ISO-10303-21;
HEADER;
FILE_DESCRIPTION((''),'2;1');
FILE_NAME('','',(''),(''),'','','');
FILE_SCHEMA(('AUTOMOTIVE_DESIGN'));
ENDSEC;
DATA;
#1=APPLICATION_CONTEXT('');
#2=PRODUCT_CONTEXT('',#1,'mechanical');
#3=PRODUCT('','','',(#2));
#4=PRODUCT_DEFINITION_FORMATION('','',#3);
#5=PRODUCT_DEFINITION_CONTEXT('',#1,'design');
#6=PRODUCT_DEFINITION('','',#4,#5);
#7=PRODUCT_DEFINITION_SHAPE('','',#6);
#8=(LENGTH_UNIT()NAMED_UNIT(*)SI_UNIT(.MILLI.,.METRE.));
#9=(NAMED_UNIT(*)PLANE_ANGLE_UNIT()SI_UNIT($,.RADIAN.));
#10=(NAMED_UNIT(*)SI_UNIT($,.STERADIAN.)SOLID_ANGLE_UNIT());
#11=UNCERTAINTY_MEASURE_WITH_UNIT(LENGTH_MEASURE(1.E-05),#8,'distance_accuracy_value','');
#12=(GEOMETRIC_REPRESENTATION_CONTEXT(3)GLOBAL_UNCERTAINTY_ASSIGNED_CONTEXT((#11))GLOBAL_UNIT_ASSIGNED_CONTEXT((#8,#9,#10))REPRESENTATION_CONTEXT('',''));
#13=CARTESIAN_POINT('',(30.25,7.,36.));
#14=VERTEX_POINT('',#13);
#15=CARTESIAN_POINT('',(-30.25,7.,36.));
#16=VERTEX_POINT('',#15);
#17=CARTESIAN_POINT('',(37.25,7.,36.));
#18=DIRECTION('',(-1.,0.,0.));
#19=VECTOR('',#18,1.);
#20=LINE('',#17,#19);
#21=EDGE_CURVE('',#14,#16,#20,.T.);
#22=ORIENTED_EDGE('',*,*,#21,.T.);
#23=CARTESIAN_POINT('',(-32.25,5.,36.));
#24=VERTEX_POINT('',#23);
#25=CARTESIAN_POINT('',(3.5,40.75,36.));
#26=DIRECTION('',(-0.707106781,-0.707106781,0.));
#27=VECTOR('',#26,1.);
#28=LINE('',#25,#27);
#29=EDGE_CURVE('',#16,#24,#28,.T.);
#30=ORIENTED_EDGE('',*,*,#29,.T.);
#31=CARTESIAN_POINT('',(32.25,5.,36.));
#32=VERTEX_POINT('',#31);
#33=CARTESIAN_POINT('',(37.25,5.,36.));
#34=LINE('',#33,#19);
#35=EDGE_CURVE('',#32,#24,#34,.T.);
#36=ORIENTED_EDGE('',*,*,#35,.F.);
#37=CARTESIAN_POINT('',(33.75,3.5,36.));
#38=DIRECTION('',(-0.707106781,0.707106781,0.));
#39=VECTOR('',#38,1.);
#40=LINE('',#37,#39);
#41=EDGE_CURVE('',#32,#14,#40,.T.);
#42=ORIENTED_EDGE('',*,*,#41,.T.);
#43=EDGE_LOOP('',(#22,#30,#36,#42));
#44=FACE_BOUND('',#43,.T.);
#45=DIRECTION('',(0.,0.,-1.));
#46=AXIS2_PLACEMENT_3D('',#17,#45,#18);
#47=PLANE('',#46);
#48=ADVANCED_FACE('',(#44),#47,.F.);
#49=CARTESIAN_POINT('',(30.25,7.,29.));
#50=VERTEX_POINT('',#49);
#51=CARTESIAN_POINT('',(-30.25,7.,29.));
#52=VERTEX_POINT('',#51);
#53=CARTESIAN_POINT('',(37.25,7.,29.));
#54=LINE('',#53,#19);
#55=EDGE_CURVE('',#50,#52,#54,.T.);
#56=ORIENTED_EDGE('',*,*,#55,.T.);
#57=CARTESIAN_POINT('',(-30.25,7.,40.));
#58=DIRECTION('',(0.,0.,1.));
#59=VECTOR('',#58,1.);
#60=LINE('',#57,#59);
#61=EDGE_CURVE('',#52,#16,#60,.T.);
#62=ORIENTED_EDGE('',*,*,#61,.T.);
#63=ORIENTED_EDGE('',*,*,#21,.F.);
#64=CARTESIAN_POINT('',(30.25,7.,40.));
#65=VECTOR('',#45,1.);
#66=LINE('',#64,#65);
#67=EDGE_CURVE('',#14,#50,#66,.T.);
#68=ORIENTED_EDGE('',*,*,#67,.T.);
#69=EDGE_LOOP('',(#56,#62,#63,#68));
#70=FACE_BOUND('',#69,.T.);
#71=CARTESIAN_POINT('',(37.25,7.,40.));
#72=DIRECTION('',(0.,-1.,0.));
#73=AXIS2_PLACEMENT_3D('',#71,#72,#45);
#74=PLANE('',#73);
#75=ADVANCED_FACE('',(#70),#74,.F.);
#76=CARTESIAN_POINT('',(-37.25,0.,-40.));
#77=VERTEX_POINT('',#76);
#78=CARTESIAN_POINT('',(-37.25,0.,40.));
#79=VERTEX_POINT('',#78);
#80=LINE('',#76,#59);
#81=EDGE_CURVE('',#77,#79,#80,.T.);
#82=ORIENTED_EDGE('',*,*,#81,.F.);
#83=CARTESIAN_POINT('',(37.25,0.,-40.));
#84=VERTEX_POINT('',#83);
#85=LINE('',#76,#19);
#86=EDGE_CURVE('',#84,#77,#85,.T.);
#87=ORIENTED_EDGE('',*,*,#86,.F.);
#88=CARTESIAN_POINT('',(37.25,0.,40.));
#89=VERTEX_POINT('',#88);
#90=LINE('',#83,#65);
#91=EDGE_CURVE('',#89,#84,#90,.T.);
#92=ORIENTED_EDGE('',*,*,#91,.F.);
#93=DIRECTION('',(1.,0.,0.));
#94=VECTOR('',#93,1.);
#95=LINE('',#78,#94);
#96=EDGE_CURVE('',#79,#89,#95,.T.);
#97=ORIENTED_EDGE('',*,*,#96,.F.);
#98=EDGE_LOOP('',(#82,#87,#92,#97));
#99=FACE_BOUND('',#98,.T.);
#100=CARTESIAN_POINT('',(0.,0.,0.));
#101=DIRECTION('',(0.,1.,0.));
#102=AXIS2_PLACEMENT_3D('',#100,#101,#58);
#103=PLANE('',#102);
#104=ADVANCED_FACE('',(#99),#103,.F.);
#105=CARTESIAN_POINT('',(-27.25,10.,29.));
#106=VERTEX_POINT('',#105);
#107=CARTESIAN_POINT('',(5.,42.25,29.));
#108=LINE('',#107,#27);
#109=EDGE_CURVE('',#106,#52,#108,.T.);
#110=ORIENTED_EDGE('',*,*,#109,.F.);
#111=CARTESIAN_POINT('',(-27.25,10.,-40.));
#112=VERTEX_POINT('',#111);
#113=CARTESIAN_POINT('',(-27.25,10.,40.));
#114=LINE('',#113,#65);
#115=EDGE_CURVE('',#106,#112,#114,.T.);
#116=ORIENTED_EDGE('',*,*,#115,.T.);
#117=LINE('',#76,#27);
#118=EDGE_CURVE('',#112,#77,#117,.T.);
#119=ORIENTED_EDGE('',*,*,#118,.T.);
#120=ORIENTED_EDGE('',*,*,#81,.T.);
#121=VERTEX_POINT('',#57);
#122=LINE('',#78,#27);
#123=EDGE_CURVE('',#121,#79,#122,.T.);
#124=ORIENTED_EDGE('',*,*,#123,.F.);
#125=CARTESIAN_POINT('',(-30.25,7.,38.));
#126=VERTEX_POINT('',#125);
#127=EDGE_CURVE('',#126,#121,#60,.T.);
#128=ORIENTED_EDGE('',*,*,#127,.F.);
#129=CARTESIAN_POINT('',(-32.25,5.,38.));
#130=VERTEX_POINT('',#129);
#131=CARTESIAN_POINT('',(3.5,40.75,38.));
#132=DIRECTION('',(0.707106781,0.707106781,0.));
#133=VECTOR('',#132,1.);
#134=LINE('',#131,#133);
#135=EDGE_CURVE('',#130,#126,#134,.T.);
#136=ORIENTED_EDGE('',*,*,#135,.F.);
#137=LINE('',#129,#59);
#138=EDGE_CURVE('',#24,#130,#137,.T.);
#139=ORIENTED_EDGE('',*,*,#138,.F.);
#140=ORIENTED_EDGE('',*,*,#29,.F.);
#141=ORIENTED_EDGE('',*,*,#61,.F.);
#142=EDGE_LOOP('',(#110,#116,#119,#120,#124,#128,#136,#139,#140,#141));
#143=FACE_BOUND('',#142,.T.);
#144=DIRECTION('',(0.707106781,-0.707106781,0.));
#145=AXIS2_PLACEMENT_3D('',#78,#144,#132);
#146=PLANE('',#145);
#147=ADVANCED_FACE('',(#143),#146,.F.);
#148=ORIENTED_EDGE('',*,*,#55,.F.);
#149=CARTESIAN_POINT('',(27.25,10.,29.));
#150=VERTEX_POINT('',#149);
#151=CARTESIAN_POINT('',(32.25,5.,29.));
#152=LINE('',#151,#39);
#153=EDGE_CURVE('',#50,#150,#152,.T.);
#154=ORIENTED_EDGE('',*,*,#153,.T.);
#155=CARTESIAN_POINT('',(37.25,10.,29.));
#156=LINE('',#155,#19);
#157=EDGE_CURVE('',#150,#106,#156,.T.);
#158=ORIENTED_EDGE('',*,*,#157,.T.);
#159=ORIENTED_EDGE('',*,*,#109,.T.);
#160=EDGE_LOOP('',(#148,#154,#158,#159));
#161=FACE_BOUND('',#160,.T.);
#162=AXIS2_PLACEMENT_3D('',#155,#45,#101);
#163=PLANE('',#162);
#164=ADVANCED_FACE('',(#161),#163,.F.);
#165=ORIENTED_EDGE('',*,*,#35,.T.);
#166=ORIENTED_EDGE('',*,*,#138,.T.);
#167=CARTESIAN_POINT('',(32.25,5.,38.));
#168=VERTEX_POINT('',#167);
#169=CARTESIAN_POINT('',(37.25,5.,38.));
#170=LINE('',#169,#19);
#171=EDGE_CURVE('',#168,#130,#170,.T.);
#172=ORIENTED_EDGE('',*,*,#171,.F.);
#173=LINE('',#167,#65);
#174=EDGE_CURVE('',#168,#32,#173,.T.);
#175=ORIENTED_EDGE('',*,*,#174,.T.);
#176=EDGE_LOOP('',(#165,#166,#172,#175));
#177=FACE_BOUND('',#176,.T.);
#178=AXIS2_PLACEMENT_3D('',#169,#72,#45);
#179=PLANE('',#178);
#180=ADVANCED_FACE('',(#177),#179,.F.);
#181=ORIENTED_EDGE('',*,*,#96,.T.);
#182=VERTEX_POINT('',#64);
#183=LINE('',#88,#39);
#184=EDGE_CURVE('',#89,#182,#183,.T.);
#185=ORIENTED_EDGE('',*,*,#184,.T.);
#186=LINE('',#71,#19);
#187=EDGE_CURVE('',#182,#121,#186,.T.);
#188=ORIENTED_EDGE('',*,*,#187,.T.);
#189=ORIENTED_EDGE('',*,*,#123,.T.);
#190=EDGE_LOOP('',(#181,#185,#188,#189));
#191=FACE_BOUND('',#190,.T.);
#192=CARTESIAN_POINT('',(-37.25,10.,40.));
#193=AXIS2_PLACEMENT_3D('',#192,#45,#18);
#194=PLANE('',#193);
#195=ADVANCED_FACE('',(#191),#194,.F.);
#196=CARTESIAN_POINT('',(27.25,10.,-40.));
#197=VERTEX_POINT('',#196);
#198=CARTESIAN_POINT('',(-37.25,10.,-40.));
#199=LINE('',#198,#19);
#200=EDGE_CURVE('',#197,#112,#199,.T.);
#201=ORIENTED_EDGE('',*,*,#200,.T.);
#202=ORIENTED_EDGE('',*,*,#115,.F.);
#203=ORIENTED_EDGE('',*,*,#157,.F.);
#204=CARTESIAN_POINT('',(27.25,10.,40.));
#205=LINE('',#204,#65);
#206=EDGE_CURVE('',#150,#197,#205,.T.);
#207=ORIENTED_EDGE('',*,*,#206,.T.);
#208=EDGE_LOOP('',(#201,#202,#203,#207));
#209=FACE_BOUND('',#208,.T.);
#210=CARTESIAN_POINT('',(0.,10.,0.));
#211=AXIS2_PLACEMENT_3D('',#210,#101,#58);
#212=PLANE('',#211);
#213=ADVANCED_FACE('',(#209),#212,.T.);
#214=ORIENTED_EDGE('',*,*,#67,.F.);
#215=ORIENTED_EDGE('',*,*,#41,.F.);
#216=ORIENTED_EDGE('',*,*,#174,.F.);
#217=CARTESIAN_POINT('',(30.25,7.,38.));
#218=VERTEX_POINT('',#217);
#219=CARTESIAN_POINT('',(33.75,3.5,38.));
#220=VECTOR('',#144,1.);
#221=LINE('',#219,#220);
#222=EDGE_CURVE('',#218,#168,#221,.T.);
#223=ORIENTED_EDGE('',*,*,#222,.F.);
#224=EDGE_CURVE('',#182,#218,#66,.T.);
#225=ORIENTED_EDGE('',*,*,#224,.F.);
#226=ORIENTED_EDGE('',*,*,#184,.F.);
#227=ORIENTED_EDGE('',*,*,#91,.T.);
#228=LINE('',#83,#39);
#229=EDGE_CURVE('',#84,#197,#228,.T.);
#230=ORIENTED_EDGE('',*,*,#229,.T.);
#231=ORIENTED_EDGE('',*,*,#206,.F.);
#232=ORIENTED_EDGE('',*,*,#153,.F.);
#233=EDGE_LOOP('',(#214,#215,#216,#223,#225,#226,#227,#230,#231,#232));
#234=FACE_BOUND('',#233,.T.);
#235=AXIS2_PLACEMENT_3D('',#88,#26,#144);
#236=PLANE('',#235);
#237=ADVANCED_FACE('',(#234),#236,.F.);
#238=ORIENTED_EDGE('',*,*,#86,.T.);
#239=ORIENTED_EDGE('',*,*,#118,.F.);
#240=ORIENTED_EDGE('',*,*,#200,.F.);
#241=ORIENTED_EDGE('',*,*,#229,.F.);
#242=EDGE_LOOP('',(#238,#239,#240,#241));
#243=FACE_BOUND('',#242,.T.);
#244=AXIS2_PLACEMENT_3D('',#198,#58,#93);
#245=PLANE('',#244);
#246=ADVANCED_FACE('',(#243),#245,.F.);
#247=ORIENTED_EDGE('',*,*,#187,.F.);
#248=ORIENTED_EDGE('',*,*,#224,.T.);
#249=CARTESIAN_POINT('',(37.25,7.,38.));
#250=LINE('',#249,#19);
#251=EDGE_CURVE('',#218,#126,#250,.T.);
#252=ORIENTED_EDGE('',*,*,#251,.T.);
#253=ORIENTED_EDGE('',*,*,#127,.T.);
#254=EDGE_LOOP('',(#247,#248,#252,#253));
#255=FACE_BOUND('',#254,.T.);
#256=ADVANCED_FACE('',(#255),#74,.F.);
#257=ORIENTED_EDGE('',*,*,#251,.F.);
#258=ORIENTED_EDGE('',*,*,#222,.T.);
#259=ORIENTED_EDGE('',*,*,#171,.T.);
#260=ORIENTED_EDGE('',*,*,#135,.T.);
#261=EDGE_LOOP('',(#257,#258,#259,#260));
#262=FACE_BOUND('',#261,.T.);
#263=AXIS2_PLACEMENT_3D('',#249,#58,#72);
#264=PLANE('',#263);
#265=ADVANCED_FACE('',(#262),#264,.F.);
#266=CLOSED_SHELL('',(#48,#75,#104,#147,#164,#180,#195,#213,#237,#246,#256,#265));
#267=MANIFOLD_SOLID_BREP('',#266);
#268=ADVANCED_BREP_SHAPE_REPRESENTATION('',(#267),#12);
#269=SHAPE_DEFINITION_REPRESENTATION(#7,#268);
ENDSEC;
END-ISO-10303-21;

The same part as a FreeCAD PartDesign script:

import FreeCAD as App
import Part
import Sketcher
from FreeCAD import Vector

doc = App.newDocument("Part")
params = doc.addObject("Spreadsheet::Sheet", "Params")
for row, (alias, value) in enumerate([
    ("sketch1_height", "80 mm"),
    ("sketch1_width", "74.5 mm"),
    ("pad1_length", "10 mm"),
    ("sketch2_width", "3 mm"),
    ("sketch2_height", "11 mm"),
    ("sketch3_width", "2 mm"),
    ("sketch4_width", "10 mm"),
], start=1):
    params.set(f"A{row}", alias)
    params.set(f"B{row}", "=" + value)
    params.setAlias(f"B{row}", alias)

body = doc.addObject("PartDesign::Body", "Body")

# Sketch on XZ plane
sketch1 = body.newObject("Sketcher::SketchObject", "Sketch")
sketch1.AttachmentSupport = (doc.getObject("XZ_Plane"), [""])
sketch1.MapMode = "FlatFace"
sketch1.addGeometry([
    Part.LineSegment(Vector(-37, -40, 0), Vector(-37, 40, 0)),
    Part.LineSegment(Vector(-37, 40, 0), Vector(37, 40, 0)),
    Part.LineSegment(Vector(37, 40, 0), Vector(37, -40, 0)),
    Part.LineSegment(Vector(37, -40, 0), Vector(-37, -40, 0)),
], False)
sketch1.addConstraint([
    Sketcher.Constraint("Coincident", 0, 2, 1, 1),
    Sketcher.Constraint("Coincident", 1, 2, 2, 1),
    Sketcher.Constraint("Coincident", 2, 2, 3, 1),
    Sketcher.Constraint("Coincident", 3, 2, 0, 1),
    Sketcher.Constraint("Vertical", 0),
    Sketcher.Constraint("Horizontal", 1),
    Sketcher.Constraint("Vertical", 2),
    Sketcher.Constraint("Horizontal", 3),
    Sketcher.Constraint("Symmetric", 0, 2, 2, 2, -1, 1),
    Sketcher.Constraint("DistanceY", 0, 1, 0, 2, 80.0),
    Sketcher.Constraint("DistanceX", 1, 1, 1, 2, 74.5),
])
sketch1.setExpression("Constraints[9]", "Params.sketch1_height")
sketch1.setExpression("Constraints[10]", "Params.sketch1_width")
pad1 = body.newObject("PartDesign::Pad", "Pad")
pad1.Profile = sketch1
pad1.setExpression("Length", "Params.pad1_length")
pad1.Reversed = True

# Sketch on YZ plane
sketch2 = body.newObject("Sketcher::SketchObject", "Sketch001")
sketch2.AttachmentSupport = (doc.getObject("YZ_Plane"), [""])
sketch2.MapMode = "FlatFace"
sketch2.AttachmentOffset = App.Placement(Vector(0, 0, -37.25), App.Rotation())
sketch2.addGeometry([
    Part.LineSegment(Vector(10, 29, 0), Vector(7, 29, 0)),
    Part.LineSegment(Vector(7, 29, 0), Vector(7, 40, 0)),
    Part.LineSegment(Vector(7, 40, 0), Vector(10, 40, 0)),
    Part.LineSegment(Vector(10, 40, 0), Vector(10, 29, 0)),
], False)
sketch2.addConstraint([
    Sketcher.Constraint("Coincident", 0, 2, 1, 1),
    Sketcher.Constraint("Coincident", 1, 2, 2, 1),
    Sketcher.Constraint("Coincident", 2, 2, 3, 1),
    Sketcher.Constraint("Coincident", 3, 2, 0, 1),
    Sketcher.Constraint("Horizontal", 0),
    Sketcher.Constraint("Vertical", 1),
    Sketcher.Constraint("Horizontal", 2),
    Sketcher.Constraint("Vertical", 3),
    Sketcher.Constraint("DistanceX", 0, 2, 0, 1, 3.0),
    Sketcher.Constraint("DistanceY", 1, 1, 1, 2, 11.0),
    Sketcher.Constraint("DistanceX", -1, 1, 0, 2, 7.0),
    Sketcher.Constraint("DistanceY", -1, 1, 0, 2, 29.0),
])
sketch2.setExpression("Constraints[8]", "Params.sketch2_width")
sketch2.setExpression("Constraints[9]", "Params.sketch2_height")
pocket1 = body.newObject("PartDesign::Pocket", "Pocket")
pocket1.Profile = sketch2
pocket1.Type = "ThroughAll"
pocket1.Reversed = True

# Sketch on YZ plane
sketch3 = body.newObject("Sketcher::SketchObject", "Sketch002")
sketch3.AttachmentSupport = (doc.getObject("YZ_Plane"), [""])
sketch3.MapMode = "FlatFace"
sketch3.AttachmentOffset = App.Placement(Vector(0, 0, -37.25), App.Rotation())
sketch3.addGeometry([
    Part.LineSegment(Vector(7, 36, 0), Vector(5, 36, 0)),
    Part.LineSegment(Vector(5, 36, 0), Vector(5, 38, 0)),
    Part.LineSegment(Vector(5, 38, 0), Vector(7, 38, 0)),
    Part.LineSegment(Vector(7, 38, 0), Vector(7, 36, 0)),
], False)
sketch3.addConstraint([
    Sketcher.Constraint("Coincident", 0, 2, 1, 1),
    Sketcher.Constraint("Coincident", 1, 2, 2, 1),
    Sketcher.Constraint("Coincident", 2, 2, 3, 1),
    Sketcher.Constraint("Coincident", 3, 2, 0, 1),
    Sketcher.Constraint("Horizontal", 0),
    Sketcher.Constraint("Vertical", 1),
    Sketcher.Constraint("Horizontal", 2),
    Sketcher.Constraint("Vertical", 3),
    Sketcher.Constraint("Equal", 2, 1),
    Sketcher.Constraint("DistanceX", 0, 2, 0, 1, 2.0),
    Sketcher.Constraint("DistanceX", -1, 1, 0, 2, 5.0),
    Sketcher.Constraint("DistanceY", -1, 1, 0, 2, 36.0),
])
sketch3.setExpression("Constraints[9]", "Params.sketch3_width")
pocket2 = body.newObject("PartDesign::Pocket", "Pocket001")
pocket2.Profile = sketch3
pocket2.Type = "ThroughAll"
pocket2.Reversed = True

# Sketch on XY plane
sketch4 = body.newObject("Sketcher::SketchObject", "Sketch003")
sketch4.AttachmentSupport = (doc.getObject("XY_Plane"), [""])
sketch4.MapMode = "FlatFace"
sketch4.AttachmentOffset = App.Placement(Vector(0, 0, -40), App.Rotation())
sketch4.addGeometry([
    Part.LineSegment(Vector(37, 0, 0), Vector(27, 10, 0)),  # 0
    Part.LineSegment(Vector(27, 10, 0), Vector(37, 10, 0)),  # 1
    Part.LineSegment(Vector(37, 10, 0), Vector(37, 0, 0)),  # 2
    Part.LineSegment(Vector(-37, 0, 0), Vector(-37, 10, 0)),  # 3
    Part.LineSegment(Vector(-37, 10, 0), Vector(-27, 10, 0)),  # 4
    Part.LineSegment(Vector(-27, 10, 0), Vector(-37, 0, 0)),  # 5
], False)
sketch4.addConstraint([
    Sketcher.Constraint("Coincident", 0, 2, 1, 1),
    Sketcher.Constraint("Coincident", 1, 2, 2, 1),
    Sketcher.Constraint("Coincident", 2, 2, 0, 1),
    Sketcher.Constraint("Coincident", 3, 2, 4, 1),
    Sketcher.Constraint("Coincident", 4, 2, 5, 1),
    Sketcher.Constraint("Coincident", 5, 2, 3, 1),
    Sketcher.Constraint("Horizontal", 1),
    Sketcher.Constraint("Vertical", 2),
    Sketcher.Constraint("Vertical", 3),
    Sketcher.Constraint("Horizontal", 4),
    Sketcher.Constraint("Symmetric", 2, 2, 5, 2, -1, 1),
    Sketcher.Constraint("Symmetric", 0, 2, 4, 2, -2),
    Sketcher.Constraint("PointOnObject", 2, 2, -1),
    Sketcher.Constraint("Perpendicular", 0, 5),
    Sketcher.Constraint("DistanceX", 1, 1, 1, 2, 10.0),
    Sketcher.Constraint("DistanceX", 3, 2, 0, 2, 64.5),
])
sketch4.setExpression("Constraints[14]", "Params.sketch4_width")
pocket3 = body.newObject("PartDesign::Pocket", "Pocket002")
pocket3.Profile = sketch4
pocket3.Type = "ThroughAll"
pocket3.Reversed = True

doc.recompute()
